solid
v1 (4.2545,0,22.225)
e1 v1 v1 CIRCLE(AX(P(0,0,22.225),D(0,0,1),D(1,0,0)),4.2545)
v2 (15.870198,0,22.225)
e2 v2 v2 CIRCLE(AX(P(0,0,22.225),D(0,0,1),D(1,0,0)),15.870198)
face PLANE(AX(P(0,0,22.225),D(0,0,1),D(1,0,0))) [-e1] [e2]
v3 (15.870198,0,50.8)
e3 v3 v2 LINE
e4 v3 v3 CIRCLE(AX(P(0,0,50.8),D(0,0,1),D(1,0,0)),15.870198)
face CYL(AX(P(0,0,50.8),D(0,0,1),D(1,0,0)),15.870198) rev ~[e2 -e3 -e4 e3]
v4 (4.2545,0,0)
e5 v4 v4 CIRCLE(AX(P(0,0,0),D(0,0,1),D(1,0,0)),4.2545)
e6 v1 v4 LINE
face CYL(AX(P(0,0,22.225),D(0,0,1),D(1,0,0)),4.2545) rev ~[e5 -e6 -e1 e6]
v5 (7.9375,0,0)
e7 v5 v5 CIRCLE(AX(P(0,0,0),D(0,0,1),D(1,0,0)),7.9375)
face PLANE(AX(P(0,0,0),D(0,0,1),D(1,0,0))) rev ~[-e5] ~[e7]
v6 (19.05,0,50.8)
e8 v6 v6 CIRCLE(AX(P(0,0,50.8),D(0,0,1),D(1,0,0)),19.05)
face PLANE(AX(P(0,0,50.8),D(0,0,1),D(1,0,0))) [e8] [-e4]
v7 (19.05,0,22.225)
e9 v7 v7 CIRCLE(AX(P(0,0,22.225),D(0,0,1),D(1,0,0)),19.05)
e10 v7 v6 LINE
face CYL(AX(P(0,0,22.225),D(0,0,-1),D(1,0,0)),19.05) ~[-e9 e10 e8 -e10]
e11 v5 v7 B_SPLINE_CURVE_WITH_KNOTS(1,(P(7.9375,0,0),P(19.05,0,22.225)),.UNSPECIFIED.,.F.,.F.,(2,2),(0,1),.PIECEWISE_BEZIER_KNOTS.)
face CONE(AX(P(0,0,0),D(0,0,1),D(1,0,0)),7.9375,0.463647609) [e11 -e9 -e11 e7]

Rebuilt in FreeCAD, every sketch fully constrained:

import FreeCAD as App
import Part
import Sketcher

V = App.Vector
Q = App.Units.Quantity

doc = App.newDocument("Part")
body = doc.addObject("PartDesign::Body", "Body")

sketch1 = doc.addObject("Sketcher::SketchObject", "Sketch")
body.addObject(sketch1)
sketch1.AttachmentSupport = (doc.XY_Plane, [""])
sketch1.MapMode = "FlatFace"
sketch1.addGeometry(Part.Circle(V(0, 0, 0), V(0, 0, 1), 8), False)
sketch1.addConstraint(Sketcher.Constraint("Coincident", 0, 3, -1, 1))
sketch1.addConstraint(Sketcher.Constraint("Diameter", 0, Q("0.625 in")))

sketch2 = doc.addObject("Sketcher::SketchObject", "Sketch001")
body.addObject(sketch2)
sketch2.AttachmentSupport = (doc.XY_Plane, [""])
sketch2.MapMode = "FlatFace"
sketch2.AttachmentOffset = App.Placement(V(0, 0, 0.875 * 25.4), App.Rotation())
sketch2.addGeometry(Part.Circle(V(0, 0, 0), V(0, 0, 1), 19), False)
sketch2.addConstraint(Sketcher.Constraint("Coincident", 0, 3, -1, 1))
sketch2.addConstraint(Sketcher.Constraint("Diameter", 0, Q("1.5 in")))

additiveloft = doc.addObject("PartDesign::AdditiveLoft", "AdditiveLoft")
body.addObject(additiveloft)
additiveloft.Profile = sketch1
additiveloft.Sections = [sketch2]

sketch3 = doc.addObject("Sketcher::SketchObject", "Sketch002")
body.addObject(sketch3)
sketch3.AttachmentSupport = (doc.XY_Plane, [""])
sketch3.MapMode = "FlatFace"
sketch3.AttachmentOffset = App.Placement(V(0, 0, 0.875 * 25.4), App.Rotation())
sketch3.addGeometry(Part.Circle(V(0, 0, 0), V(0, 0, 1), 4.3), False)
sketch3.addConstraint(Sketcher.Constraint("Coincident", 0, 3, -1, 1))
sketch3.addConstraint(Sketcher.Constraint("Diameter", 0, Q("0.335 in")))
pocket1 = doc.addObject("PartDesign::Pocket", "Pocket")
body.addObject(pocket1)
pocket1.Profile = sketch3
pocket1.Length = Q("0.875 in")

sketch4 = doc.addObject("Sketcher::SketchObject", "Sketch003")
body.addObject(sketch4)
sketch4.AttachmentSupport = (doc.XY_Plane, [""])
sketch4.MapMode = "FlatFace"
sketch4.AttachmentOffset = App.Placement(V(0, 0, 0.875 * 25.4), App.Rotation())
sketch4.addGeometry(Part.Circle(V(0, 0, 0), V(0, 0, 1), 19), False)
sketch4.addConstraint(Sketcher.Constraint("Coincident", 0, 3, -1, 1))
sketch4.addConstraint(Sketcher.Constraint("Diameter", 0, Q("1.5 in")))
pad1 = doc.addObject("PartDesign::Pad", "Pad")
body.addObject(pad1)
pad1.Profile = sketch4
pad1.Length = Q("1.125 in")

sketch5 = doc.addObject("Sketcher::SketchObject", "Sketch004")
body.addObject(sketch5)
sketch5.AttachmentSupport = (doc.XY_Plane, [""])
sketch5.MapMode = "FlatFace"
sketch5.AttachmentOffset = App.Placement(V(0, 0, 2 * 25.4), App.Rotation())
sketch5.addGeometry(Part.Circle(V(0, 0, 0), V(0, 0, 1), 16), False)
sketch5.addConstraint(Sketcher.Constraint("Coincident", 0, 3, -1, 1))
sketch5.addConstraint(Sketcher.Constraint("Diameter", 0, Q("31.740396 mm")))
pocket2 = doc.addObject("PartDesign::Pocket", "Pocket001")
body.addObject(pocket2)
pocket2.Profile = sketch5
pocket2.Length = Q("1.125 in")

doc.recompute()
